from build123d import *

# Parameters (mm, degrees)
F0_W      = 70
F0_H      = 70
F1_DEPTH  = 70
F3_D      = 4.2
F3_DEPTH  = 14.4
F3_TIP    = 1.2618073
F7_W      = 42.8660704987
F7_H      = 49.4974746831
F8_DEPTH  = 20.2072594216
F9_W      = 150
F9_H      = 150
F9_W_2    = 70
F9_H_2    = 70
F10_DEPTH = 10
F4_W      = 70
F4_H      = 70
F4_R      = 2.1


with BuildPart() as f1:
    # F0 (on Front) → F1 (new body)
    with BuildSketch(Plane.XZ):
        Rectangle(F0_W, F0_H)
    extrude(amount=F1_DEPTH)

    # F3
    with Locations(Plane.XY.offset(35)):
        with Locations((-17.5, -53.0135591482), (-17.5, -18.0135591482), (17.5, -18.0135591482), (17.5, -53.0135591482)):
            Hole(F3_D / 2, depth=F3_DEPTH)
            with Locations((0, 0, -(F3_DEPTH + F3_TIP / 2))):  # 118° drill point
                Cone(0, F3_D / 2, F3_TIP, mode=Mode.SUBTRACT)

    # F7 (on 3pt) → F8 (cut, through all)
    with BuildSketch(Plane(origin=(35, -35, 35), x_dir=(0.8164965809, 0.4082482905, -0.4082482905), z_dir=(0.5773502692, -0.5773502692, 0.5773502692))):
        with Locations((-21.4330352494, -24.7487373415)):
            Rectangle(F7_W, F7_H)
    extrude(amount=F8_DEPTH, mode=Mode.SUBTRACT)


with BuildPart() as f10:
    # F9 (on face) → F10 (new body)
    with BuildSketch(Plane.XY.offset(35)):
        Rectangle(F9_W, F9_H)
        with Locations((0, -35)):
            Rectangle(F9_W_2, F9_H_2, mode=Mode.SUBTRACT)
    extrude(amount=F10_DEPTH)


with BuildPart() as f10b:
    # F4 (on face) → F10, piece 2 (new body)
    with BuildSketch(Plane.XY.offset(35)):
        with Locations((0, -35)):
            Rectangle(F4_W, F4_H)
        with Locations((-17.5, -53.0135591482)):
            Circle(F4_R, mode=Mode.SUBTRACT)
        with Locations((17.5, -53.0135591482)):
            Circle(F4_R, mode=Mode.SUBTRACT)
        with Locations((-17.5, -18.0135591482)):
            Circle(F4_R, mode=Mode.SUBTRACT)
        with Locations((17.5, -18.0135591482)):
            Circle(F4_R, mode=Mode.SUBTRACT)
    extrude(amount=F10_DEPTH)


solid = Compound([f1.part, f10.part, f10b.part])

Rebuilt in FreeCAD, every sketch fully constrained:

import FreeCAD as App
import Part
import Sketcher
Q = App.Units.Quantity


def add_polygon(sketch, points):
    """Adds a closed chain of lines whose ends are joined by coincident constraints."""
    first, n = sketch.GeometryCount, len(points)
    for a, b in zip(points, points[1:] + points[:1]):
        sketch.addGeometry(Part.LineSegment(App.Vector(*a, 0), App.Vector(*b, 0)), False)
    for i in range(n):
        sketch.addConstraint(Sketcher.Constraint("Coincident", first + i, 2, first + (i + 1) % n, 1))

doc = App.newDocument("Part")
body = doc.addObject("PartDesign::Body", "Body")

sketch1 = body.newObject("Sketcher::SketchObject", "Sketch")
sketch1.AttachmentSupport = (doc.getObject("XZ_Plane"), [""])
sketch1.MapMode = "FlatFace"
add_polygon(sketch1, [(-35, 35), (-35, -35), (35, -35), (35, 35)])
sketch1.addConstraint([
    Sketcher.Constraint("Vertical", 0),
    Sketcher.Constraint("Horizontal", 1),
    Sketcher.Constraint("Vertical", 2),
    Sketcher.Constraint("Horizontal", 3),
    Sketcher.Constraint("Symmetric", 0, 2, 2, 2, -1, 1),
    Sketcher.Constraint("Equal", 3, 0),
    Sketcher.Constraint("DistanceX", 1, 1, 1, 2, Q("70 mm")),
])
pad1 = body.newObject("PartDesign::Pad", "Pad")
pad1.Profile = sketch1
pad1.Length = 70

sketch2 = body.newObject("Sketcher::SketchObject", "Sketch001")
sketch2.AttachmentSupport = (doc.getObject("XY_Plane"), [""])
sketch2.MapMode = "FlatFace"
sketch2.AttachmentOffset = App.Placement(App.Vector(0, 0, 35), App.Rotation())
sketch2.addGeometry([
    Part.Circle(App.Vector(-17.5, -53.013559, 0), App.Vector(0, 0, 1), 2.1),
    Part.Circle(App.Vector(-17.5, -18.013559, 0), App.Vector(0, 0, 1), 2.1),
    Part.Circle(App.Vector(17.5, -18.013559, 0), App.Vector(0, 0, 1), 2.1),
    Part.Circle(App.Vector(17.5, -53.013559, 0), App.Vector(0, 0, 1), 2.1),
], False)
sketch2.addConstraint([
    Sketcher.Constraint("Equal", 0, 1),
    Sketcher.Constraint("Equal", 1, 2),
    Sketcher.Constraint("Equal", 2, 3),
    Sketcher.Constraint("Symmetric", 1, 3, 2, 3, -2),
    Sketcher.Constraint("Symmetric", 0, 3, 3, 3, -2),
    Sketcher.Constraint("Vertical", 0, 3, 1, 3),
    Sketcher.Constraint("Diameter", 0, Q("4.2 mm")),
    Sketcher.Constraint("DistanceY", 0, 3, 1, 3, Q("35 mm")),
    Sketcher.Constraint("DistanceX", 1, 3, 2, 3, Q("35 mm")),
    Sketcher.Constraint("DistanceY", 0, 3, -1, 1, Q("53.013559 mm")),
])
doc.recompute()
hole = body.newObject("PartDesign::Hole", "Hole")
hole.Profile = sketch2
hole.ThreadType = "None"
hole.Diameter = 4.2
hole.DepthType = "Dimension"
hole.Depth = 14.4
hole.DrillPoint = "Angled"
hole.DrillPointAngle = 118

sketch3 = body.newObject("Sketcher::SketchObject", "Sketch002")
sketch3.Placement = App.Placement(App.Vector(35, -35, 35), App.Rotation(App.Vector(0.816496581, 0.40824829, -0.40824829), App.Vector(0, 0.707106781, 0.707106781), App.Vector(0.577350269, -0.577350269, 0.577350269), "ZXY"))
add_polygon(sketch3, [(-42.86607, 0), (-42.86607, -49.497475), (0, -49.497475), (0, 0)])
sketch3.addConstraint([
    Sketcher.Constraint("Vertical", 0),
    Sketcher.Constraint("Horizontal", 1),
    Sketcher.Constraint("Vertical", 2),
    Sketcher.Constraint("Horizontal", 3),
    Sketcher.Constraint("Coincident", 2, 2, -1, 1),
    Sketcher.Constraint("DistanceX", 1, 1, 1, 2, Q("42.86607 mm")),
    Sketcher.Constraint("DistanceY", 0, 2, 0, 1, Q("49.497475 mm")),
])
pocket1 = body.newObject("PartDesign::Pocket", "Pocket")
pocket1.Profile = sketch3
pocket1.Type = "ThroughAll"
pocket1.Reversed = True
body2 = doc.addObject("PartDesign::Body", "Body001")

sketch4 = body2.newObject("Sketcher::SketchObject", "Sketch003")
sketch4.AttachmentSupport = (doc.getObject("XY_Plane001"), [""])
sketch4.MapMode = "FlatFace"
sketch4.AttachmentOffset = App.Placement(App.Vector(0, 0, 35), App.Rotation())
add_polygon(sketch4, [(-75, 75), (-75, -75), (75, -75), (75, 75)])
add_polygon(sketch4, [(35, -70), (-35, -70), (-35, 0), (35, 0)])
sketch4.addConstraint([
    Sketcher.Constraint("Vertical", 0),
    Sketcher.Constraint("Horizontal", 1),
    Sketcher.Constraint("Vertical", 2),
    Sketcher.Constraint("Horizontal", 3),
    Sketcher.Constraint("Horizontal", 4),
    Sketcher.Constraint("Vertical", 5),
    Sketcher.Constraint("Horizontal", 6),
    Sketcher.Constraint("Vertical", 7),
    Sketcher.Constraint("Symmetric", 0, 2, 2, 2, -1, 1),
    Sketcher.Constraint("Symmetric", 5, 2, 6, 2, -1, 1),
    Sketcher.Constraint("Equal", 3, 0),
    Sketcher.Constraint("Equal", 6, 5),
    Sketcher.Constraint("DistanceX", 1, 1, 1, 2, Q("150 mm")),
    Sketcher.Constraint("DistanceX", 4, 2, 4, 1, Q("70 mm")),
])
pad2 = body2.newObject("PartDesign::Pad", "Pad001")
pad2.Profile = sketch4
pad2.Length = 10
body3 = doc.addObject("PartDesign::Body", "Body002")

sketch5 = body3.newObject("Sketcher::SketchObject", "Sketch004")
sketch5.AttachmentSupport = (doc.getObject("XY_Plane002"), [""])
sketch5.MapMode = "FlatFace"
sketch5.AttachmentOffset = App.Placement(App.Vector(0, 0, 35), App.Rotation())
add_polygon(sketch5, [(-35, 0), (-35, -70), (35, -70), (35, 0)])
sketch5.addGeometry(Part.Circle(App.Vector(-17.5, -53.013559, 0), App.Vector(0, 0, 1), 2.1), False)
sketch5.addGeometry(Part.Circle(App.Vector(17.5, -53.013559, 0), App.Vector(0, 0, 1), 2.1), False)
sketch5.addGeometry(Part.Circle(App.Vector(-17.5, -18.013559, 0), App.Vector(0, 0, 1), 2.1), False)
sketch5.addGeometry(Part.Circle(App.Vector(17.5, -18.013559, 0), App.Vector(0, 0, 1), 2.1), False)
sketch5.addConstraint([
    Sketcher.Constraint("Vertical", 0),
    Sketcher.Constraint("Horizontal", 1),
    Sketcher.Constraint("Vertical", 2),
    Sketcher.Constraint("Horizontal", 3),
    Sketcher.Constraint("Equal", 4, 5),
    Sketcher.Constraint("Equal", 5, 6),
    Sketcher.Constraint("Equal", 6, 7),
    Sketcher.Constraint("Symmetric", 2, 2, 3, 2, -1, 1),
    Sketcher.Constraint("Symmetric", 4, 3, 5, 3, -2),
    Sketcher.Constraint("Symmetric", 6, 3, 7, 3, -2),
    Sketcher.Constraint("Vertical", 4, 3, 6, 3),
    Sketcher.Constraint("Equal", 3, 0),
    Sketcher.Constraint("Diameter", 4, Q("4.2 mm")),
    Sketcher.Constraint("DistanceX", 1, 1, 1, 2, Q("70 mm")),
    Sketcher.Constraint("DistanceX", 4, 3, 5, 3, Q("35 mm")),
    Sketcher.Constraint("DistanceY", 4, 3, 6, 3, Q("35 mm")),
    Sketcher.Constraint("DistanceY", 4, 3, -1, 1, Q("53.013559 mm")),
])
pad3 = body3.newObject("PartDesign::Pad", "Pad002")
pad3.Profile = sketch5
pad3.Length = 10

doc.recompute()
